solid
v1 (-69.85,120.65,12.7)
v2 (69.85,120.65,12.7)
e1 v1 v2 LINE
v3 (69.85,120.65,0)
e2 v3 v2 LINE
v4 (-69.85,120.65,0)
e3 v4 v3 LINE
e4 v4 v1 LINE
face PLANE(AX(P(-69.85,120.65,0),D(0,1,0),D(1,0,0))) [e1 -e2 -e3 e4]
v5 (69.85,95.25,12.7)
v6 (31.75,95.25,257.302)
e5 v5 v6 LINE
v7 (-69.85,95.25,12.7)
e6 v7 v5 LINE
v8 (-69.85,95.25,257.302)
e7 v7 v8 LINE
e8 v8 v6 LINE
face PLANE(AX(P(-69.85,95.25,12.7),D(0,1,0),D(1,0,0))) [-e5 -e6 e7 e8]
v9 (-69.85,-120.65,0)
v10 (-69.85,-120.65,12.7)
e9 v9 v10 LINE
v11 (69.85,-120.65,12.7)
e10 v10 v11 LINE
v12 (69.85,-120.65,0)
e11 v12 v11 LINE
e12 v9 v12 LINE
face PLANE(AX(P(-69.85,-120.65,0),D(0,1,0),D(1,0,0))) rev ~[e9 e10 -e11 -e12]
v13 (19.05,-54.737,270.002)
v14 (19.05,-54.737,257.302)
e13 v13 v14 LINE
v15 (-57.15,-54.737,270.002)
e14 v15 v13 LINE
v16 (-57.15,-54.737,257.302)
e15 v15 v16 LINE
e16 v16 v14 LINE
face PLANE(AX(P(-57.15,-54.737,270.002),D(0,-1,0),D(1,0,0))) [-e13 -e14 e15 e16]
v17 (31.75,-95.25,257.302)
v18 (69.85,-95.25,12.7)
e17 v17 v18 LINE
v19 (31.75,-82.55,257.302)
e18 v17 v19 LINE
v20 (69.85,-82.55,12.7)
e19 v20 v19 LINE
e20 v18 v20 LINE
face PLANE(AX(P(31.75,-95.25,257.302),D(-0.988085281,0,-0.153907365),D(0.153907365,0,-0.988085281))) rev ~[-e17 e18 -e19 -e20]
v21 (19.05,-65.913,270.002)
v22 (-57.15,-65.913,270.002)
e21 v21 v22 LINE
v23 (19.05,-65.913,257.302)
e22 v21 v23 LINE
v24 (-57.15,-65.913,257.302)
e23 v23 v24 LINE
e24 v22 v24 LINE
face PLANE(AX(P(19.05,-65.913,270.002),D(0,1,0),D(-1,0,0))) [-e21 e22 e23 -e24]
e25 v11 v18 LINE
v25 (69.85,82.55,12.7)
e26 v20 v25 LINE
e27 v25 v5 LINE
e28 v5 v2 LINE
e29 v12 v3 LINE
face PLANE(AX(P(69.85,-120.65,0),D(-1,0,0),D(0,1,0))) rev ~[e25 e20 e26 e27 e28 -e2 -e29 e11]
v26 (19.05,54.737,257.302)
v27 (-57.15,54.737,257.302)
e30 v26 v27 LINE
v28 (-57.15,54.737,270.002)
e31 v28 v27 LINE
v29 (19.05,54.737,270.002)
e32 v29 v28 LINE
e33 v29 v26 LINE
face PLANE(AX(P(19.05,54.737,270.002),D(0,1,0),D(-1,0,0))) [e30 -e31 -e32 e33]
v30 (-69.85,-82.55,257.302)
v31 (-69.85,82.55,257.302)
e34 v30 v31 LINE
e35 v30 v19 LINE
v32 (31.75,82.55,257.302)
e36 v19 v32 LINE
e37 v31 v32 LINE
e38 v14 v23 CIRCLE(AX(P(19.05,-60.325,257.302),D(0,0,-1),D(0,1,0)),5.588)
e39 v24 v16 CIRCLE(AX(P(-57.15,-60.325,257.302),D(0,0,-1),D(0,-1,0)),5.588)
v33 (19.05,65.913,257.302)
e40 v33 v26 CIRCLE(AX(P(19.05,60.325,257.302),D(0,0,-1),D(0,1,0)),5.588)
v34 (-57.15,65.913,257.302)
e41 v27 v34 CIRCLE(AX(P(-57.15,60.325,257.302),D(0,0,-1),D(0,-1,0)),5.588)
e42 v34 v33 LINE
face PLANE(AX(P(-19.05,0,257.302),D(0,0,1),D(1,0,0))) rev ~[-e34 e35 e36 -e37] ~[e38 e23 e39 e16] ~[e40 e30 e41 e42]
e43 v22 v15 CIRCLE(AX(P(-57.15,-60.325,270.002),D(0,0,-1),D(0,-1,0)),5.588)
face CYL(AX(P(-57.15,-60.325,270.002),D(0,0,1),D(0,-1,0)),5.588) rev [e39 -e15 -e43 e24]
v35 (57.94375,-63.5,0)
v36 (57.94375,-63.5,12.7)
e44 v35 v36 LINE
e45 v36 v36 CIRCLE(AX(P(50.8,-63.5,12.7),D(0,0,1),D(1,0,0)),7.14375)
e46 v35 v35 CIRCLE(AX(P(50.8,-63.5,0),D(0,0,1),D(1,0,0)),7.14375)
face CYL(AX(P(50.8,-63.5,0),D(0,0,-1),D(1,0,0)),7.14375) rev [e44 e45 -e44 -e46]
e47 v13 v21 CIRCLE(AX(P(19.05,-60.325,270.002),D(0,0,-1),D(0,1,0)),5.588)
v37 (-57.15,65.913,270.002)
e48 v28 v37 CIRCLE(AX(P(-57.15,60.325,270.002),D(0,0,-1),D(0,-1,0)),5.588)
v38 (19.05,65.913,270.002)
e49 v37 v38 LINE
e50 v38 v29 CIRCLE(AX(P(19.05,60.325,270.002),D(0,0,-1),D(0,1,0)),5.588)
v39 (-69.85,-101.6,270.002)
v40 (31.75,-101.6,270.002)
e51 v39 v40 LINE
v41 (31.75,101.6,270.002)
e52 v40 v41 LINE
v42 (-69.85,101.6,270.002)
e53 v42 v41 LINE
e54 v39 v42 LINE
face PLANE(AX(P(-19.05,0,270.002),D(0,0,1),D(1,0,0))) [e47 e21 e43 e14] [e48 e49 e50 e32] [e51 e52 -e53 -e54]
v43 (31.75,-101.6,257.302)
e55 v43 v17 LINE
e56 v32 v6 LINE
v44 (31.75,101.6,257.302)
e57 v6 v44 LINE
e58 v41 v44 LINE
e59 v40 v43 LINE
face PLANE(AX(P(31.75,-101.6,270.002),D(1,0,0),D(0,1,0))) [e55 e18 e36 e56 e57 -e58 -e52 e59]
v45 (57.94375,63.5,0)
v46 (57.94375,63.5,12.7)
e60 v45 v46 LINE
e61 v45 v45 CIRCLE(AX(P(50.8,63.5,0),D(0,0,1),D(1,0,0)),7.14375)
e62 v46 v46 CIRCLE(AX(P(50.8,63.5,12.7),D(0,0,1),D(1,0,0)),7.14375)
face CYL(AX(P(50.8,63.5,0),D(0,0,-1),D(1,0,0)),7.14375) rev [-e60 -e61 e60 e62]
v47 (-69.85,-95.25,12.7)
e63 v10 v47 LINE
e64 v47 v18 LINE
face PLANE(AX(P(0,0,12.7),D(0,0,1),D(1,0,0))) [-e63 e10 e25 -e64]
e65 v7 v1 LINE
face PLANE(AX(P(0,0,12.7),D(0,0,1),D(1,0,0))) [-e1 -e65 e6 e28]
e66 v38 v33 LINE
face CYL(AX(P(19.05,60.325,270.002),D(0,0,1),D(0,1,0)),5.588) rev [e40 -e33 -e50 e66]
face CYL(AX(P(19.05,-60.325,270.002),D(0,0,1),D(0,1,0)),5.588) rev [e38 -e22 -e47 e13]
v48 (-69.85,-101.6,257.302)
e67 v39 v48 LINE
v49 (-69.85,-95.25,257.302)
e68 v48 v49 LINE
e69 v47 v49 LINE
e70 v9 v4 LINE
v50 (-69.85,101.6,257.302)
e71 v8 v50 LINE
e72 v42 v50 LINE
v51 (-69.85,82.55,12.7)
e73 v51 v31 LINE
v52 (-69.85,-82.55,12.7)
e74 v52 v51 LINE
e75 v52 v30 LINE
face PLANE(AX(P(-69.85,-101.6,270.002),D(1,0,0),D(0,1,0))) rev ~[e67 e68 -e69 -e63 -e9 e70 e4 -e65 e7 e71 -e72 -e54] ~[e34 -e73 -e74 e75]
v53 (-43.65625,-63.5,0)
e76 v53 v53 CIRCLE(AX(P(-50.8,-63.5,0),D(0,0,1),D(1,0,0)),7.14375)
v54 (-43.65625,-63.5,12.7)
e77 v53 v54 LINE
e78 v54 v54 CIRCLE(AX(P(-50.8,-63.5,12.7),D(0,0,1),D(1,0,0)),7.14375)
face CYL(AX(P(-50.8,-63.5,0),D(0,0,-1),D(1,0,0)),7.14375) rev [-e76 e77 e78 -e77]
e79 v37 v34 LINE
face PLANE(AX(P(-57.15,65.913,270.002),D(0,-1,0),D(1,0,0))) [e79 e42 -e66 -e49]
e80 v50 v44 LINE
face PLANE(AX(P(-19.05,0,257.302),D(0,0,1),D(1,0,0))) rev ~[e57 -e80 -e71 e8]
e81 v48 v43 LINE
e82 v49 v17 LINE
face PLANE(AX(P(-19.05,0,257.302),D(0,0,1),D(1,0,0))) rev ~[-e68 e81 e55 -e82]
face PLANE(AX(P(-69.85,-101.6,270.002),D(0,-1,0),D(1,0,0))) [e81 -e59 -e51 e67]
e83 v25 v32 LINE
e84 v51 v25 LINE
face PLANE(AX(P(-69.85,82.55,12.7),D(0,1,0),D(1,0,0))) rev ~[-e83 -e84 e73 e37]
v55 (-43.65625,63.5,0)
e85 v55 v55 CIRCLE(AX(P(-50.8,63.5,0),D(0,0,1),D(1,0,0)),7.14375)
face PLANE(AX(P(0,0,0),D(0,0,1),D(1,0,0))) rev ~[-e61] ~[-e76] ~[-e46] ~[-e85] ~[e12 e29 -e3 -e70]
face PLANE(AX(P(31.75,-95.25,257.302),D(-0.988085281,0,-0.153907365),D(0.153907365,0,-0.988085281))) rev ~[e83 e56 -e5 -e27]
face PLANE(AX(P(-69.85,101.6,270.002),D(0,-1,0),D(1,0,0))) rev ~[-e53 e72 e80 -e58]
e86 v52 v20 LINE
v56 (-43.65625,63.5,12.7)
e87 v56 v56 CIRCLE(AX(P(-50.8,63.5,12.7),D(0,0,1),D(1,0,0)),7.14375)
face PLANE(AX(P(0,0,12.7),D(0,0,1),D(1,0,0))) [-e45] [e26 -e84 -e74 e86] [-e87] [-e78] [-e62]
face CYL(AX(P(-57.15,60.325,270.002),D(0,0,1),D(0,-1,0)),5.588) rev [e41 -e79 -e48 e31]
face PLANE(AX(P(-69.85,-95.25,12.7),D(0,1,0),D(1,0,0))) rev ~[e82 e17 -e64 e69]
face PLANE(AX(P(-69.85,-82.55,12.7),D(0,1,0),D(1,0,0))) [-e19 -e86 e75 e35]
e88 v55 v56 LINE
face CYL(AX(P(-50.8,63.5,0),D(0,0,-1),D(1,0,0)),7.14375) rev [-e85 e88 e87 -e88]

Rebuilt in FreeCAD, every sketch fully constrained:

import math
import FreeCAD as App
import Part
import Sketcher

V = App.Vector
Q = App.Units.Quantity


def add_polygon(sketch, points):
    """Adds a closed chain of lines whose ends are joined by coincident constraints."""
    first, n = sketch.GeometryCount, len(points)
    for a, b in zip(points, points[1:] + points[:1]):
        sketch.addGeometry(Part.LineSegment(App.Vector(*a, 0), App.Vector(*b, 0)), False)
    for i in range(n):
        sketch.addConstraint(Sketcher.Constraint("Coincident", first + i, 2, first + (i + 1) % n, 1))

doc = App.newDocument("Part")
body = doc.addObject("PartDesign::Body", "Body")

# Sketch on XY plane
sketch1 = body.newObject("Sketcher::SketchObject", "Sketch")
sketch1.AttachmentSupport = (doc.getObject("XY_Plane"), [""])
sketch1.MapMode = "FlatFace"
add_polygon(sketch1, [(-70, 121), (-70, -121), (70, -121), (70, 121)])  # lines 0-3
sketch1.addGeometry(Part.Circle(V(-51, -64, 0), V(0, 0, 1), 7), False)  # 4
sketch1.addGeometry(Part.Circle(V(51, -64, 0), V(0, 0, 1), 7), False)  # 5
sketch1.addGeometry(Part.Circle(V(-51, 64, 0), V(0, 0, 1), 7), False)  # 6
sketch1.addGeometry(Part.Circle(V(51, 64, 0), V(0, 0, 1), 7), False)  # 7
sketch1.addConstraint(Sketcher.Constraint("Vertical", 0))
sketch1.addConstraint(Sketcher.Constraint("Horizontal", 1))
sketch1.addConstraint(Sketcher.Constraint("Vertical", 2))
sketch1.addConstraint(Sketcher.Constraint("Horizontal", 3))
sketch1.addConstraint(Sketcher.Constraint("Equal", 4, 5))
sketch1.addConstraint(Sketcher.Constraint("Equal", 5, 6))
sketch1.addConstraint(Sketcher.Constraint("Equal", 6, 7))
sketch1.addConstraint(Sketcher.Constraint("Symmetric", 5, 3, 6, 3, -1, 1))
sketch1.addConstraint(Sketcher.Constraint("Symmetric", 4, 3, 7, 3, -1, 1))
sketch1.addConstraint(Sketcher.Constraint("Symmetric", 0, 2, 2, 2, -1, 1))
sketch1.addConstraint(Sketcher.Constraint("Symmetric", 4, 3, 5, 3, -2))
sketch1.addConstraint(Sketcher.Constraint("Diameter", 4, Q("0.5625 in")))
sketch1.addConstraint(Sketcher.Constraint("DistanceX", 1, 1, 1, 2, Q("5.5 in")))
sketch1.addConstraint(Sketcher.Constraint("DistanceY", 0, 2, 0, 1, Q("9.5 in")))
sketch1.addConstraint(Sketcher.Constraint("DistanceX", 4, 3, -1, 1, Q("2 in")))
sketch1.addConstraint(Sketcher.Constraint("DistanceY", 4, 3, 6, 3, Q("5 in")))
pad1 = body.newObject("PartDesign::Pad", "Pad")
pad1.Profile = sketch1
pad1.Length = Q("0.5 in")
body2 = doc.addObject("PartDesign::Body", "Body001")

# Sketch on XY plane
sketch2 = body2.newObject("Sketcher::SketchObject", "Sketch001")
sketch2.AttachmentSupport = (doc.getObject("XY_Plane001"), [""])
sketch2.MapMode = "FlatFace"
sketch2.AttachmentOffset = App.Placement(V(0, 0, 10.63 * 25.4), App.Rotation())
add_polygon(sketch2, [(-70, 102), (-70, -102), (32, -102), (32, 102)])  # lines 0-3
sketch2.addGeometry(Part.LineSegment(V(19, -66, 0), V(-57, -66, 0)), False)  # 4
sketch2.addGeometry(Part.ArcOfCircle(Part.Circle(V(-57, -60, 0), V(0, 0, 1), 6), math.radians(90), math.radians(270)), False)  # 5
sketch2.addGeometry(Part.LineSegment(V(-57, -55, 0), V(19, -55, 0)), False)  # 6
sketch2.addGeometry(Part.ArcOfCircle(Part.Circle(V(19, -60, 0), V(0, 0, 1), 6), math.radians(-90), math.radians(90)), False)  # 7
sketch2.addGeometry(Part.ArcOfCircle(Part.Circle(V(19, 60, 0), V(0, 0, 1), 6), math.radians(-90), math.radians(90)), False)  # 8
sketch2.addGeometry(Part.LineSegment(V(19, 55, 0), V(-57, 55, 0)), False)  # 9
sketch2.addGeometry(Part.ArcOfCircle(Part.Circle(V(-57, 60, 0), V(0, 0, 1), 6), math.radians(90), math.radians(270)), False)  # 10
sketch2.addGeometry(Part.LineSegment(V(-57, 66, 0), V(19, 66, 0)), False)  # 11
sketch2.addConstraint(Sketcher.Constraint("Tangent", 4, 2, 5, 2))
sketch2.addConstraint(Sketcher.Constraint("Tangent", 5, 1, 6, 1))
sketch2.addConstraint(Sketcher.Constraint("Tangent", 6, 2, 7, 2))
sketch2.addConstraint(Sketcher.Constraint("Tangent", 7, 1, 4, 1))
sketch2.addConstraint(Sketcher.Constraint("Tangent", 8, 1, 9, 1))
sketch2.addConstraint(Sketcher.Constraint("Tangent", 9, 2, 10, 2))
sketch2.addConstraint(Sketcher.Constraint("Tangent", 10, 1, 11, 1))
sketch2.addConstraint(Sketcher.Constraint("Tangent", 11, 2, 8, 2))
sketch2.addConstraint(Sketcher.Constraint("Vertical", 0))
sketch2.addConstraint(Sketcher.Constraint("Horizontal", 1))
sketch2.addConstraint(Sketcher.Constraint("Vertical", 2))
sketch2.addConstraint(Sketcher.Constraint("Horizontal", 3))
sketch2.addConstraint(Sketcher.Constraint("Horizontal", 4))
sketch2.addConstraint(Sketcher.Constraint("Horizontal", 6))
sketch2.addConstraint(Sketcher.Constraint("Horizontal", 9))
sketch2.addConstraint(Sketcher.Constraint("Horizontal", 11))
sketch2.addConstraint(Sketcher.Constraint("Equal", 7, 8))
sketch2.addConstraint(Sketcher.Constraint("Symmetric", 7, 3, 8, 3, -1))
sketch2.addConstraint(Sketcher.Constraint("Vertical", 5, 3, 10, 3))
sketch2.addConstraint(Sketcher.Constraint("DistanceX", 1, 1, 1, 2, Q("4 in")))
sketch2.addConstraint(Sketcher.Constraint("DistanceX", 4, 2, 4, 1, Q("3 in")))
sketch2.addConstraint(Sketcher.Constraint("DistanceY", 0, 2, 0, 1, Q("8 in")))
sketch2.addConstraint(Sketcher.Constraint("Radius", 5, Q("0.22 in")))
sketch2.addConstraint(Sketcher.Constraint("DistanceY", 0, 2, -1, 1, Q("4 in")))
sketch2.addConstraint(Sketcher.Constraint("DistanceX", 0, 2, 5, 3, Q("0.5 in")))
sketch2.addConstraint(Sketcher.Constraint("DistanceX", 5, 3, -1, 1, Q("2.25 in")))
sketch2.addConstraint(Sketcher.Constraint("DistanceY", 7, 3, 8, 3, Q("4.75 in")))
pad2 = body2.newObject("PartDesign::Pad", "Pad001")
pad2.Profile = sketch2
pad2.Length = Q("0.5 in")
pad2.Reversed = True
body3 = doc.addObject("PartDesign::Body", "Body002")

# Sketch on XY plane
sketch3 = body3.newObject("Sketcher::SketchObject", "Sketch002")
sketch3.AttachmentSupport = (doc.getObject("XY_Plane002"), [""])
sketch3.MapMode = "FlatFace"
sketch3.AttachmentOffset = App.Placement(V(0, 0, 0.5 * 25.4), App.Rotation())
add_polygon(sketch3, [(-70, 95), (-70, 83), (70, 83), (70, 95)])  # lines 0-3
sketch3.addConstraint(Sketcher.Constraint("Vertical", 0))
sketch3.addConstraint(Sketcher.Constraint("Horizontal", 1))
sketch3.addConstraint(Sketcher.Constraint("Vertical", 2))
sketch3.addConstraint(Sketcher.Constraint("Horizontal", 3))
sketch3.addConstraint(Sketcher.Constraint("DistanceX", 1, 1, 1, 2, Q("5.5 in")))
sketch3.addConstraint(Sketcher.Constraint("DistanceY", 0, 2, 0, 1, Q("0.5 in")))
sketch3.addConstraint(Sketcher.Constraint("DistanceX", 0, 2, -1, 1, Q("2.75 in")))
sketch3.addConstraint(Sketcher.Constraint("DistanceY", -1, 1, 0, 2, Q("3.25 in")))
pad3 = body3.newObject("PartDesign::Pad", "Pad002")
pad3.Profile = sketch3
pad3.Length = Q("9.63 in")
body4 = doc.addObject("PartDesign::Body", "Body003")

# Sketch on XY plane
sketch4 = body4.newObject("Sketcher::SketchObject", "Sketch003")
sketch4.AttachmentSupport = (doc.getObject("XY_Plane003"), [""])
sketch4.MapMode = "FlatFace"
sketch4.AttachmentOffset = App.Placement(V(0, 0, 0.5 * 25.4), App.Rotation())
add_polygon(sketch4, [(-70, -83), (-70, -95), (70, -95), (70, -83)])  # lines 0-3
sketch4.addConstraint(Sketcher.Constraint("Vertical", 0))
sketch4.addConstraint(Sketcher.Constraint("Horizontal", 1))
sketch4.addConstraint(Sketcher.Constraint("Vertical", 2))
sketch4.addConstraint(Sketcher.Constraint("Horizontal", 3))
sketch4.addConstraint(Sketcher.Constraint("DistanceX", 1, 1, 1, 2, Q("5.5 in")))
sketch4.addConstraint(Sketcher.Constraint("DistanceY", 0, 2, 0, 1, Q("0.5 in")))
sketch4.addConstraint(Sketcher.Constraint("DistanceX", 0, 2, -1, 1, Q("2.75 in")))
sketch4.addConstraint(Sketcher.Constraint("DistanceY", 0, 2, -1, 1, Q("3.75 in")))
pad4 = body4.newObject("PartDesign::Pad", "Pad003")
pad4.Profile = sketch4
pad4.Length = Q("9.63 in")
doc.recompute()

boolean = body.newObject("PartDesign::Boolean", "Boolean")
boolean.Type = "Fuse"
boolean.addObjects([body4])
doc.recompute()

boolean2 = body.newObject("PartDesign::Boolean", "Boolean001")
boolean2.Type = "Fuse"
boolean2.addObjects([body3])
doc.recompute()

boolean3 = body.newObject("PartDesign::Boolean", "Boolean002")
boolean3.Type = "Fuse"
boolean3.addObjects([body2])

# Sketch on XZ plane
sketch5 = body.newObject("Sketcher::SketchObject", "Sketch004")
sketch5.AttachmentSupport = (doc.getObject("XZ_Plane"), [""])
sketch5.MapMode = "FlatFace"
sketch5.AttachmentOffset = App.Placement(V(0, 0, 3.75 * 25.4), App.Rotation())
add_polygon(sketch5, [(70, 257), (32, 257), (70, 13)])  # lines 0-2
sketch5.addConstraint(Sketcher.Constraint("Horizontal", 0))
sketch5.addConstraint(Sketcher.Constraint("Vertical", 2))
sketch5.addConstraint(Sketcher.Constraint("DistanceX", 0, 2, 0, 1, Q("1.5 in")))
sketch5.addConstraint(Sketcher.Constraint("DistanceY", 2, 1, 2, 2, Q("9.63 in")))
sketch5.addConstraint(Sketcher.Constraint("DistanceY", -1, 1, 1, 2, Q("0.5 in")))
sketch5.addConstraint(Sketcher.Constraint("DistanceX", -1, 1, 0, 2, Q("1.25 in")))
pocket1 = body.newObject("PartDesign::Pocket", "Pocket")
pocket1.Profile = sketch5
pocket1.Type = "ThroughAll"

doc.recompute()
